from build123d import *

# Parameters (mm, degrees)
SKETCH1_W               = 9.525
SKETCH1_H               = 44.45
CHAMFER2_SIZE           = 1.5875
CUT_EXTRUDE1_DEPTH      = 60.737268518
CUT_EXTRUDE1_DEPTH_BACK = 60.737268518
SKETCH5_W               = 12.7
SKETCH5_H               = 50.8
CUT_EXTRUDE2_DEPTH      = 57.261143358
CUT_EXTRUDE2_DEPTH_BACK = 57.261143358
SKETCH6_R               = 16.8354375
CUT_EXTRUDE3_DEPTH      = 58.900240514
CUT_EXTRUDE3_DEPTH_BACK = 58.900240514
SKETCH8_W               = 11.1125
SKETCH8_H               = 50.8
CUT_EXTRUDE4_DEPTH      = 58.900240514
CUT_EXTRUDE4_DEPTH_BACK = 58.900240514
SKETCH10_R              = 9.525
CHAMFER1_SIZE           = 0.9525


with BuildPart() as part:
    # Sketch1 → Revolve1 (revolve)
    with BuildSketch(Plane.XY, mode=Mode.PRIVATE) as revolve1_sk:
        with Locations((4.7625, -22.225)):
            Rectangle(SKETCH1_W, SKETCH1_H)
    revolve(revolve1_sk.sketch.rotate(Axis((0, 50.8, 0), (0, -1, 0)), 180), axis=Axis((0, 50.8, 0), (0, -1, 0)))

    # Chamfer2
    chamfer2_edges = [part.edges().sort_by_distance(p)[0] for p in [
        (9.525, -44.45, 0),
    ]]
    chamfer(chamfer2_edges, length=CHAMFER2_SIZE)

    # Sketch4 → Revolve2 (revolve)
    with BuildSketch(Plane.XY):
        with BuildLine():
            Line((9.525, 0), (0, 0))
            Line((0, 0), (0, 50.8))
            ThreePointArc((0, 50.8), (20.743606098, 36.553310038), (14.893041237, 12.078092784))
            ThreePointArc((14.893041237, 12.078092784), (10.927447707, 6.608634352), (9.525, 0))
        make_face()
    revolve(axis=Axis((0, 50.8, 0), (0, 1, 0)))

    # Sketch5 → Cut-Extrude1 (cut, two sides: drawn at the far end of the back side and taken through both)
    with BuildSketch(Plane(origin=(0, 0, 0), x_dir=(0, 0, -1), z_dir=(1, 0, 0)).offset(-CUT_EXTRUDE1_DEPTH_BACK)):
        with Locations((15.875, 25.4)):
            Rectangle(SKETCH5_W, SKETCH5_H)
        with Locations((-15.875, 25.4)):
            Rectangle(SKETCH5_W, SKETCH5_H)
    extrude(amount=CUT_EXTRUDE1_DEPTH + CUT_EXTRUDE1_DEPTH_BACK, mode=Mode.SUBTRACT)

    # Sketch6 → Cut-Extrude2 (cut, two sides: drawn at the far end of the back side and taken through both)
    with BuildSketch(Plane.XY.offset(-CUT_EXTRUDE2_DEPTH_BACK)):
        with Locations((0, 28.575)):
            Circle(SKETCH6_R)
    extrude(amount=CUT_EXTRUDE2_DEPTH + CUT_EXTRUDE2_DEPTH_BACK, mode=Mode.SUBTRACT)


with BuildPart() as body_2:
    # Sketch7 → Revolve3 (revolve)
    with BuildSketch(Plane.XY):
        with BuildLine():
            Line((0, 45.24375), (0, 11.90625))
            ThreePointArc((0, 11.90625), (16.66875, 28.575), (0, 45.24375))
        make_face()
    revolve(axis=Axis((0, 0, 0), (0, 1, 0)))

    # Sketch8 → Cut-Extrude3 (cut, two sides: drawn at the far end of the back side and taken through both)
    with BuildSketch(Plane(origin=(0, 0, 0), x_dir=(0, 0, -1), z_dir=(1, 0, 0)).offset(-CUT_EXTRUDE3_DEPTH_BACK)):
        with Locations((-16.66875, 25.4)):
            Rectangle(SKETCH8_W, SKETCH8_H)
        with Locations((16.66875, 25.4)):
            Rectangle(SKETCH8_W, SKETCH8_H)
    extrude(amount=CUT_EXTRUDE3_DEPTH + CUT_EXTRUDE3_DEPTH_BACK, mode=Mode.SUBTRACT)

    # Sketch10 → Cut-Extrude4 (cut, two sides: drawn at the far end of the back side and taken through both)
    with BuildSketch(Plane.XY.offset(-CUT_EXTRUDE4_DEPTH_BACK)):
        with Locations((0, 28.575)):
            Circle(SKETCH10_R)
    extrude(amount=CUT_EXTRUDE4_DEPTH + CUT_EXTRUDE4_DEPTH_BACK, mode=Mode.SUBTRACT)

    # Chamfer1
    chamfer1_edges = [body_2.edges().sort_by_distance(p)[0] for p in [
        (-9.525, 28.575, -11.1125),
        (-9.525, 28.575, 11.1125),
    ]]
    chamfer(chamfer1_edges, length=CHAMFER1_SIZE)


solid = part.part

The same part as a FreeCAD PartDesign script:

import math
import FreeCAD as App
import Part
import Sketcher
from FreeCAD import Vector
Q = App.Units.Quantity


def edges_at(feature, points):
    """Names of the edges that pass closest to the given points."""
    edges = feature.Shape.Edges
    near = lambda p: min(range(len(edges)), key=lambda i: edges[i].distToShape(Part.Vertex(*p))[0])
    return sorted({f"Edge{near(p) + 1}" for p in points})

doc = App.newDocument("Part")
body = doc.addObject("PartDesign::Body", "Body")

sketch1 = body.newObject("Sketcher::SketchObject", "Sketch")
sketch1.AttachmentSupport = (doc.getObject("XY_Plane"), [""])
sketch1.MapMode = "FlatFace"
sketch1.addGeometry([
    Part.LineSegment(Vector(0, 0, 0), Vector(0, -44, 0)),
    Part.LineSegment(Vector(0, -44, 0), Vector(10, -44, 0)),
    Part.LineSegment(Vector(10, -44, 0), Vector(10, 0, 0)),
    Part.LineSegment(Vector(10, 0, 0), Vector(0, 0, 0)),
], False)
sketch1.addConstraint([
    Sketcher.Constraint("Coincident", 0, 2, 1, 1),
    Sketcher.Constraint("Coincident", 1, 2, 2, 1),
    Sketcher.Constraint("Coincident", 2, 2, 3, 1),
    Sketcher.Constraint("Coincident", 3, 2, 0, 1),
    Sketcher.Constraint("Vertical", 0),
    Sketcher.Constraint("Horizontal", 1),
    Sketcher.Constraint("Vertical", 2),
    Sketcher.Constraint("Horizontal", 3),
    Sketcher.Constraint("Coincident", 3, 2, -1, 1),
    Sketcher.Constraint("DistanceY", 0, 2, 0, 1, Q("1.75 in")),
    Sketcher.Constraint("DistanceX", 1, 1, 1, 2, Q("0.375 in")),
])
revolution = body.newObject("PartDesign::Revolution", "Revolution")
revolution.Profile = sketch1
revolution.ReferenceAxis = (sketch1, ["V_Axis"])
revolution.Angle = 360
doc.recompute()

chamfer = body.newObject("PartDesign::Chamfer", "Chamfer")
chamfer.Base = (revolution, edges_at(revolution, [(9.525, -44.45, 0)]))
chamfer.Size = Q("0.0625 in")

sketch2 = body.newObject("Sketcher::SketchObject", "Sketch001")
sketch2.AttachmentSupport = (doc.getObject("XY_Plane"), [""])
sketch2.MapMode = "FlatFace"
sketch2.addGeometry([
    Part.LineSegment(Vector(0, 0, 0), Vector(10, 0, 0)),
    Part.ArcOfCircle(Part.Circle(Vector(26, 0, 0), Vector(0, 0, 1), 16), math.radians(132), math.radians(180)),
    Part.ArcOfCircle(Part.Circle(Vector(0, 29, 0), Vector(0, 0, 1), 22), math.radians(-48), math.radians(90)),
    Part.LineSegment(Vector(0, 51, 0), Vector(0, 0, 0)),
], False)
sketch2.addConstraint([
    Sketcher.Constraint("Coincident", 0, 2, 1, 2),
    Sketcher.Constraint("Tangent", 1, 1, 2, 1),
    Sketcher.Constraint("Coincident", 2, 2, 3, 1),
    Sketcher.Constraint("Coincident", 3, 2, 0, 1),
    Sketcher.Constraint("Horizontal", 0),
    Sketcher.Constraint("Vertical", 3),
    Sketcher.Constraint("Coincident", 3, 2, -1, 1),
    Sketcher.Constraint("PointOnObject", 1, 3, -1),
    Sketcher.Constraint("PointOnObject", 2, 3, -2),
    Sketcher.Constraint("DistanceY", 3, 2, 3, 1, Q("2 in")),
    Sketcher.Constraint("Radius", 1, Q("0.640625 in")),
    Sketcher.Constraint("Radius", 2, Q("0.875 in")),
])
revolution2 = body.newObject("PartDesign::Revolution", "Revolution001")
revolution2.Profile = sketch2
revolution2.ReferenceAxis = (sketch2, ["V_Axis"])
revolution2.Angle = 360

sketch3 = body.newObject("Sketcher::SketchObject", "Sketch002")
sketch3.AttachmentSupport = (doc.getObject("YZ_Plane"), [""])
sketch3.MapMode = "FlatFace"
sketch3.addGeometry([
    Part.LineSegment(Vector(51, -10, 0), Vector(0, -10, 0)),
    Part.LineSegment(Vector(0, -10, 0), Vector(0, -22, 0)),
    Part.LineSegment(Vector(0, -22, 0), Vector(51, -22, 0)),
    Part.LineSegment(Vector(51, -22, 0), Vector(51, -10, 0)),
    Part.LineSegment(Vector(51, 22, 0), Vector(0, 22, 0)),
    Part.LineSegment(Vector(0, 22, 0), Vector(0, 10, 0)),
    Part.LineSegment(Vector(0, 10, 0), Vector(51, 10, 0)),
    Part.LineSegment(Vector(51, 10, 0), Vector(51, 22, 0)),
], False)
sketch3.addConstraint([
    Sketcher.Constraint("Coincident", 0, 2, 1, 1),
    Sketcher.Constraint("Coincident", 1, 2, 2, 1),
    Sketcher.Constraint("Coincident", 2, 2, 3, 1),
    Sketcher.Constraint("Coincident", 3, 2, 0, 1),
    Sketcher.Constraint("Coincident", 4, 2, 5, 1),
    Sketcher.Constraint("Coincident", 5, 2, 6, 1),
    Sketcher.Constraint("Coincident", 6, 2, 7, 1),
    Sketcher.Constraint("Coincident", 7, 2, 4, 1),
    Sketcher.Constraint("Horizontal", 0),
    Sketcher.Constraint("Vertical", 1),
    Sketcher.Constraint("Horizontal", 2),
    Sketcher.Constraint("Vertical", 3),
    Sketcher.Constraint("Horizontal", 4),
    Sketcher.Constraint("Vertical", 5),
    Sketcher.Constraint("Horizontal", 6),
    Sketcher.Constraint("Vertical", 7),
    Sketcher.Constraint("Symmetric", 1, 2, 4, 2, -1, 1),
    Sketcher.Constraint("Symmetric", 0, 2, 5, 2, -1),
    Sketcher.Constraint("Vertical", 3, 2, 6, 2),
    Sketcher.Constraint("DistanceX", 0, 2, 0, 1, Q("2 in")),
    Sketcher.Constraint("DistanceY", 1, 2, 1, 1, Q("0.5 in")),
    Sketcher.Constraint("DistanceY", 0, 2, 4, 2, Q("1.25 in")),
])
pocket1 = body.newObject("PartDesign::Pocket", "Pocket")
pocket1.Profile = sketch3
pocket1.Type = "ThroughAll"
pocket1.Midplane = True

sketch4 = body.newObject("Sketcher::SketchObject", "Sketch003")
sketch4.AttachmentSupport = (doc.getObject("XY_Plane"), [""])
sketch4.MapMode = "FlatFace"
sketch4.addGeometry(Part.Circle(Vector(0, 29, 0), Vector(0, 0, 1), 17), False)
sketch4.addConstraint([
    Sketcher.Constraint("PointOnObject", 0, 3, -2),
    Sketcher.Constraint("DistanceY", -1, 1, 0, 3, Q("1.125 in")),
    Sketcher.Constraint("Diameter", 0, Q("33.670875 mm")),
])
pocket2 = body.newObject("PartDesign::Pocket", "Pocket001")
pocket2.Profile = sketch4
pocket2.Type = "ThroughAll"
pocket2.Midplane = True
body2 = doc.addObject("PartDesign::Body", "Body001")

sketch5 = body2.newObject("Sketcher::SketchObject", "Sketch004")
sketch5.AttachmentSupport = (doc.getObject("XY_Plane001"), [""])
sketch5.MapMode = "FlatFace"
sketch5.addGeometry([
    Part.LineSegment(Vector(0, 45, 0), Vector(0, 12, 0)),
    Part.ArcOfCircle(Part.Circle(Vector(0, 29, 0), Vector(0, 0, 1), 17), math.radians(-90), math.radians(90)),
], False)
sketch5.addConstraint([
    Sketcher.Constraint("Coincident", 0, 1, 1, 2),
    Sketcher.Constraint("Coincident", 1, 1, 0, 2),
    Sketcher.Constraint("Vertical", 0),
    Sketcher.Constraint("PointOnObject", 1, 3, -2),
    Sketcher.Constraint("PointOnObject", 0, 1, -2),
    Sketcher.Constraint("Radius", 1, Q("0.65625 in")),
    Sketcher.Constraint("DistanceY", -1, 1, 1, 3, Q("1.125 in")),
])
revolution3 = body2.newObject("PartDesign::Revolution", "Revolution002")
revolution3.Profile = sketch5
revolution3.ReferenceAxis = (sketch5, ["V_Axis"])
revolution3.Angle = 360

sketch6 = body2.newObject("Sketcher::SketchObject", "Sketch005")
sketch6.AttachmentSupport = (doc.getObject("YZ_Plane001"), [""])
sketch6.MapMode = "FlatFace"
sketch6.addGeometry([
    Part.LineSegment(Vector(51, 22, 0), Vector(0, 22, 0)),
    Part.LineSegment(Vector(0, 22, 0), Vector(0, 11, 0)),
    Part.LineSegment(Vector(0, 11, 0), Vector(51, 11, 0)),
    Part.LineSegment(Vector(51, 11, 0), Vector(51, 22, 0)),
    Part.LineSegment(Vector(51, -11, 0), Vector(0, -11, 0)),
    Part.LineSegment(Vector(0, -11, 0), Vector(0, -22, 0)),
    Part.LineSegment(Vector(0, -22, 0), Vector(51, -22, 0)),
    Part.LineSegment(Vector(51, -22, 0), Vector(51, -11, 0)),
], False)
sketch6.addConstraint([
    Sketcher.Constraint("Coincident", 0, 2, 1, 1),
    Sketcher.Constraint("Coincident", 1, 2, 2, 1),
    Sketcher.Constraint("Coincident", 2, 2, 3, 1),
    Sketcher.Constraint("Coincident", 3, 2, 0, 1),
    Sketcher.Constraint("Coincident", 4, 2, 5, 1),
    Sketcher.Constraint("Coincident", 5, 2, 6, 1),
    Sketcher.Constraint("Coincident", 6, 2, 7, 1),
    Sketcher.Constraint("Coincident", 7, 2, 4, 1),
    Sketcher.Constraint("Horizontal", 0),
    Sketcher.Constraint("Vertical", 1),
    Sketcher.Constraint("Horizontal", 2),
    Sketcher.Constraint("Vertical", 3),
    Sketcher.Constraint("Horizontal", 4),
    Sketcher.Constraint("Vertical", 5),
    Sketcher.Constraint("Horizontal", 6),
    Sketcher.Constraint("Vertical", 7),
    Sketcher.Constraint("Symmetric", 1, 2, 4, 2, -1, 1),
    Sketcher.Constraint("Symmetric", 0, 2, 5, 2, -1),
    Sketcher.Constraint("Vertical", 3, 2, 6, 2),
    Sketcher.Constraint("DistanceX", 0, 2, 0, 1, Q("2 in")),
    Sketcher.Constraint("DistanceY", 1, 2, 1, 1, Q("0.4375 in")),
    Sketcher.Constraint("DistanceY", 5, 2, 0, 2, Q("1.75 in")),
])
pocket3 = body2.newObject("PartDesign::Pocket", "Pocket002")
pocket3.Profile = sketch6
pocket3.Type = "ThroughAll"
pocket3.Midplane = True

sketch7 = body2.newObject("Sketcher::SketchObject", "Sketch006")
sketch7.AttachmentSupport = (doc.getObject("XY_Plane001"), [""])
sketch7.MapMode = "FlatFace"
sketch7.addGeometry(Part.Circle(Vector(0, 29, 0), Vector(0, 0, 1), 10), False)
sketch7.addConstraint([
    Sketcher.Constraint("PointOnObject", 0, 3, -2),
    Sketcher.Constraint("Diameter", 0, Q("0.75 in")),
    Sketcher.Constraint("DistanceY", -1, 1, 0, 3, Q("1.125 in")),
])
pocket4 = body2.newObject("PartDesign::Pocket", "Pocket003")
pocket4.Profile = sketch7
pocket4.Type = "ThroughAll"
pocket4.Midplane = True
doc.recompute()

chamfer2 = body2.newObject("PartDesign::Chamfer", "Chamfer001")
chamfer2.Base = (pocket4, edges_at(pocket4, [(-9.525, 28.575, -11.113), (-9.525, 28.575, 11.113)]))
chamfer2.Size = Q("0.0375 in")
body2.Visibility = False

doc.recompute()
